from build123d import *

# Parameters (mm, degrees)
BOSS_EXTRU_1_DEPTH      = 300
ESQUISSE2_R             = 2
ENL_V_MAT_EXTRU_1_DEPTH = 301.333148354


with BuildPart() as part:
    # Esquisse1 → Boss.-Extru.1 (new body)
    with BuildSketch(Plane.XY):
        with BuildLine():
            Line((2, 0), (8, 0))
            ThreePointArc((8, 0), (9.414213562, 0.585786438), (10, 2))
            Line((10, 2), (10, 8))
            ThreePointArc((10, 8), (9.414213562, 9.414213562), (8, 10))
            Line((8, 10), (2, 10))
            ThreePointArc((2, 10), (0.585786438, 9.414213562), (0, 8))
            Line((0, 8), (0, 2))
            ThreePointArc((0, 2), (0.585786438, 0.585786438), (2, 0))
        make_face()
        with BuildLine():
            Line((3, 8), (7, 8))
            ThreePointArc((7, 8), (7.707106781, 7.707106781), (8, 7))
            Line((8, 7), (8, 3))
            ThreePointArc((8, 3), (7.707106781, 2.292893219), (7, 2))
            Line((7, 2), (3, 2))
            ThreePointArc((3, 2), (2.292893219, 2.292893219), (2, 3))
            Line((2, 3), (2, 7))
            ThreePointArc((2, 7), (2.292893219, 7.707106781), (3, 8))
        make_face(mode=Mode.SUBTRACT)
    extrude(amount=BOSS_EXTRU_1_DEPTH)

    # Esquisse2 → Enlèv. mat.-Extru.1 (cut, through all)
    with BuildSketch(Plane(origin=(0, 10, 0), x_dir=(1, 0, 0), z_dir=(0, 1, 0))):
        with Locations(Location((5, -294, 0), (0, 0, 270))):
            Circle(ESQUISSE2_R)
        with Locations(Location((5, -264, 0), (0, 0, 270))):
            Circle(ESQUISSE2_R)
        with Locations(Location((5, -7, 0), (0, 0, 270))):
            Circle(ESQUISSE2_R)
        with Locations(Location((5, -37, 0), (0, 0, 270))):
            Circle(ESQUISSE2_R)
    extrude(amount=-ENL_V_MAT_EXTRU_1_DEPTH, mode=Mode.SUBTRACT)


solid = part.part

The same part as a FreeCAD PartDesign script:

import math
import FreeCAD as App
import Part
import Sketcher
from FreeCAD import Vector

doc = App.newDocument("Part")
body = doc.addObject("PartDesign::Body", "Body")

sketch1 = doc.addObject("Sketcher::SketchObject", "Sketch")
body.addObject(sketch1)
sketch1.AttachmentSupport = (doc.XY_Plane, [""])
sketch1.MapMode = "FlatFace"
sketch1.addGeometry(Part.LineSegment(Vector(2, 0, 0), Vector(8, 0, 0)), False)
sketch1.addGeometry(Part.ArcOfCircle(Part.Circle(Vector(8, 2, 0), Vector(0, 0, 1), 2), math.radians(-90), math.radians(0)), False)
sketch1.addGeometry(Part.LineSegment(Vector(10, 2, 0), Vector(10, 8, 0)), False)
sketch1.addGeometry(Part.ArcOfCircle(Part.Circle(Vector(8, 8, 0), Vector(0, 0, 1), 2), math.radians(0), math.radians(90)), False)
sketch1.addGeometry(Part.LineSegment(Vector(8, 10, 0), Vector(2, 10, 0)), False)
sketch1.addGeometry(Part.ArcOfCircle(Part.Circle(Vector(2, 8, 0), Vector(0, 0, 1), 2), math.radians(90), math.radians(180)), False)
sketch1.addGeometry(Part.LineSegment(Vector(0, 8, 0), Vector(0, 2, 0)), False)
sketch1.addGeometry(Part.ArcOfCircle(Part.Circle(Vector(2, 2, 0), Vector(0, 0, 1), 2), math.radians(-180), math.radians(-90)), False)
sketch1.addGeometry(Part.ArcOfCircle(Part.Circle(Vector(3, 7, 0), Vector(0, 0, 1), 1), math.radians(90), math.radians(180)), False)
sketch1.addGeometry(Part.LineSegment(Vector(3, 8, 0), Vector(7, 8, 0)), False)
sketch1.addGeometry(Part.ArcOfCircle(Part.Circle(Vector(7, 7, 0), Vector(0, 0, 1), 1), math.radians(0), math.radians(90)), False)
sketch1.addGeometry(Part.LineSegment(Vector(8, 7, 0), Vector(8, 3, 0)), False)
sketch1.addGeometry(Part.ArcOfCircle(Part.Circle(Vector(7, 3, 0), Vector(0, 0, 1), 1), math.radians(-90), math.radians(0)), False)
sketch1.addGeometry(Part.LineSegment(Vector(7, 2, 0), Vector(3, 2, 0)), False)
sketch1.addGeometry(Part.ArcOfCircle(Part.Circle(Vector(3, 3, 0), Vector(0, 0, 1), 1), math.radians(-180), math.radians(-90)), False)
sketch1.addGeometry(Part.LineSegment(Vector(2, 3, 0), Vector(2, 7, 0)), False)
sketch1.addConstraint(Sketcher.Constraint("Tangent", 0, 2, 1, 1))
sketch1.addConstraint(Sketcher.Constraint("Tangent", 1, 2, 2, 1))
sketch1.addConstraint(Sketcher.Constraint("Tangent", 2, 2, 3, 1))
sketch1.addConstraint(Sketcher.Constraint("Tangent", 3, 2, 4, 1))
sketch1.addConstraint(Sketcher.Constraint("Tangent", 4, 2, 5, 1))
sketch1.addConstraint(Sketcher.Constraint("Tangent", 5, 2, 6, 1))
sketch1.addConstraint(Sketcher.Constraint("Tangent", 6, 2, 7, 1))
sketch1.addConstraint(Sketcher.Constraint("Tangent", 7, 2, 0, 1))
sketch1.addConstraint(Sketcher.Constraint("Tangent", 8, 1, 9, 1))
sketch1.addConstraint(Sketcher.Constraint("Tangent", 9, 2, 10, 2))
sketch1.addConstraint(Sketcher.Constraint("Tangent", 10, 1, 11, 1))
sketch1.addConstraint(Sketcher.Constraint("Tangent", 11, 2, 12, 2))
sketch1.addConstraint(Sketcher.Constraint("Tangent", 12, 1, 13, 1))
sketch1.addConstraint(Sketcher.Constraint("Tangent", 13, 2, 14, 2))
sketch1.addConstraint(Sketcher.Constraint("Tangent", 14, 1, 15, 1))
sketch1.addConstraint(Sketcher.Constraint("Tangent", 15, 2, 8, 2))
sketch1.addConstraint(Sketcher.Constraint("Horizontal", 0))
sketch1.addConstraint(Sketcher.Constraint("Vertical", 2))
sketch1.addConstraint(Sketcher.Constraint("Horizontal", 4))
sketch1.addConstraint(Sketcher.Constraint("Vertical", 6))
sketch1.addConstraint(Sketcher.Constraint("Horizontal", 9))
sketch1.addConstraint(Sketcher.Constraint("Vertical", 11))
sketch1.addConstraint(Sketcher.Constraint("Horizontal", 13))
sketch1.addConstraint(Sketcher.Constraint("Vertical", 15))
sketch1.addConstraint(Sketcher.Constraint("Equal", 1, 3))
sketch1.addConstraint(Sketcher.Constraint("Equal", 3, 5))
sketch1.addConstraint(Sketcher.Constraint("Equal", 5, 7))
sketch1.addConstraint(Sketcher.Constraint("Equal", 8, 10))
sketch1.addConstraint(Sketcher.Constraint("Equal", 10, 12))
sketch1.addConstraint(Sketcher.Constraint("Equal", 12, 14))
sketch1.addConstraint(Sketcher.Constraint("PointOnObject", 0, 2, -1))
sketch1.addConstraint(Sketcher.Constraint("PointOnObject", 5, 2, -2))
sketch1.addConstraint(Sketcher.Constraint("Horizontal", 5, 2, 8, 1))
sketch1.addConstraint(Sketcher.Constraint("Horizontal", 6, 2, 12, 1))
sketch1.addConstraint(Sketcher.Constraint("Vertical", 3, 2, 10, 1))
sketch1.addConstraint(Sketcher.Constraint("Vertical", 7, 2, 14, 1))
sketch1.addConstraint(Sketcher.Constraint("Equal", 4, 2))
sketch1.addConstraint(Sketcher.Constraint("Radius", 1, 2.0))
sketch1.addConstraint(Sketcher.Constraint("Radius", 8, 1.0))
sketch1.addConstraint(Sketcher.Constraint("DistanceX", 0, 1, 0, 2, 6.0))
pad1 = doc.addObject("PartDesign::Pad", "Pad")
body.addObject(pad1)
pad1.Profile = sketch1
pad1.Length = 300

sketch2 = doc.addObject("Sketcher::SketchObject", "Sketch001")
body.addObject(sketch2)
sketch2.AttachmentSupport = (doc.XZ_Plane, [""])
sketch2.MapMode = "FlatFace"
sketch2.AttachmentOffset = App.Placement(Vector(0, 0, -10), App.Rotation())
sketch2.addGeometry(Part.Circle(Vector(5, 294, 0), Vector(0, 0, 1), 2), False)
sketch2.addGeometry(Part.Circle(Vector(5, 264, 0), Vector(0, 0, 1), 2), False)
sketch2.addGeometry(Part.Circle(Vector(5, 7, 0), Vector(0, 0, 1), 2), False)
sketch2.addGeometry(Part.Circle(Vector(5, 37, 0), Vector(0, 0, 1), 2), False)
sketch2.addConstraint(Sketcher.Constraint("Equal", 0, 1))
sketch2.addConstraint(Sketcher.Constraint("Equal", 1, 2))
sketch2.addConstraint(Sketcher.Constraint("Equal", 2, 3))
sketch2.addConstraint(Sketcher.Constraint("Vertical", 0, 3, 1, 3))
sketch2.addConstraint(Sketcher.Constraint("Vertical", 1, 3, 2, 3))
sketch2.addConstraint(Sketcher.Constraint("Vertical", 2, 3, 3, 3))
sketch2.addConstraint(Sketcher.Constraint("Diameter", 0, 4.0))
sketch2.addConstraint(Sketcher.Constraint("DistanceX", -1, 1, 0, 3, 5.0))
sketch2.addConstraint(Sketcher.Constraint("DistanceY", -1, 1, 0, 3, 294.0))
sketch2.addConstraint(Sketcher.Constraint("DistanceY", -1, 1, 1, 3, 264.0))
sketch2.addConstraint(Sketcher.Constraint("DistanceY", -1, 1, 2, 3, 7.0))
sketch2.addConstraint(Sketcher.Constraint("DistanceY", -1, 1, 3, 3, 37.0))
pocket1 = doc.addObject("PartDesign::Pocket", "Pocket")
body.addObject(pocket1)
pocket1.Profile = sketch2
pocket1.Type = "ThroughAll"
pocket1.Reversed = True

doc.recompute()
